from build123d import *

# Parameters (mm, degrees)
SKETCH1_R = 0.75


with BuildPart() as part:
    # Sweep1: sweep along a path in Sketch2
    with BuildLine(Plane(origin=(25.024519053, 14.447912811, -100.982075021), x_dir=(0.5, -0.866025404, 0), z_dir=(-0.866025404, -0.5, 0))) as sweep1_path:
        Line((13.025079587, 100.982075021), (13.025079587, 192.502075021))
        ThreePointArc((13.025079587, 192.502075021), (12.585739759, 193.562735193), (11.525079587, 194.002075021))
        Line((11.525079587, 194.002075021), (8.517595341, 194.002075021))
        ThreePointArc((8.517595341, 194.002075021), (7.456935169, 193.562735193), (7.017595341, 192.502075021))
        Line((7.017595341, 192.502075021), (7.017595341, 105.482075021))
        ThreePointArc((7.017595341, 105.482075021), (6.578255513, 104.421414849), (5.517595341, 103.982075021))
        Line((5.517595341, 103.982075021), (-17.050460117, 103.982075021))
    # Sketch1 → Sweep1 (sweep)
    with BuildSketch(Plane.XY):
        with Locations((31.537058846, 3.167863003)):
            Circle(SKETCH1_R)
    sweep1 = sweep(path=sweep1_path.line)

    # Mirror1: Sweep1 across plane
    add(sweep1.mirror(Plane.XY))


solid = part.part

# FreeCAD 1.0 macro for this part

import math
import FreeCAD as App
import Part
import Sketcher

V = App.Vector
Q = App.Units.Quantity

doc = App.newDocument("Part")
params = doc.addObject("Spreadsheet::Sheet", "Params")
for row, (alias, value) in enumerate([
    ("sketch1_diameter", "1.5 mm"),
    ("sketch2_radius", "1.5 mm"),
    ("sketch2_height", "91.52 mm"),
], start=1):
    params.set(f"A{row}", alias)
    params.set(f"B{row}", "=" + value)
    params.setAlias(f"B{row}", alias)

body = doc.addObject("PartDesign::Body", "Body")

# Sketch on XY plane
sketch1 = doc.addObject("Sketcher::SketchObject", "Sketch")
body.addObject(sketch1)
sketch1.AttachmentSupport = (doc.XY_Plane, [""])
sketch1.MapMode = "FlatFace"
sketch1.addGeometry(Part.Circle(V(31.537059, 3.167863, 0), V(0, 0, 1), 0.75), False)
sketch1.addConstraint([
    Sketcher.Constraint("Diameter", 0, Q("1.5 mm")),
    Sketcher.Constraint("DistanceX", -1, 1, 0, 3, Q("31.537059 mm")),
    Sketcher.Constraint("DistanceY", -1, 1, 0, 3, Q("3.167863 mm")),
])
sketch1.setExpression("Constraints[0]", "Params.sketch1_diameter")

# Sketch on an angled plane
sketch2 = doc.addObject("Sketcher::SketchObject", "Sketch001")
body.addObject(sketch2)
sketch2.Placement = App.Placement(V(25.024519, 14.447913, 0), App.Rotation(V(-0.5, 0.866025404, 0), V(0, 0, 1), V(0.866025404, 0.5, 0), "ZXY"))
sketch2.addGeometry([
    Part.LineSegment(V(-13.02508, 0, 0), V(-13.02508, 91.52, 0)),  # 0
    Part.ArcOfCircle(Part.Circle(V(-11.52508, 91.52, 0), V(0, 0, 1), 1.5), math.radians(90), math.radians(180)),  # 1
    Part.LineSegment(V(-11.52508, 93.02, 0), V(-8.517595, 93.02, 0)),  # 2
    Part.ArcOfCircle(Part.Circle(V(-8.517595, 91.52, 0), V(0, 0, 1), 1.5), math.radians(0), math.radians(90)),  # 3
    Part.LineSegment(V(-7.017595, 91.52, 0), V(-7.017595, 4.5, 0)),  # 4
    Part.ArcOfCircle(Part.Circle(V(-5.517595, 4.5, 0), V(0, 0, 1), 1.5), math.radians(180), math.radians(270)),  # 5
    Part.LineSegment(V(-5.517595, 3, 0), V(17.05046, 3, 0)),  # 6
], False)
sketch2.addConstraint([
    Sketcher.Constraint("Tangent", 0, 2, 1, 2),
    Sketcher.Constraint("Tangent", 1, 1, 2, 1),
    Sketcher.Constraint("Tangent", 2, 2, 3, 2),
    Sketcher.Constraint("Tangent", 3, 1, 4, 1),
    Sketcher.Constraint("Tangent", 4, 2, 5, 1),
    Sketcher.Constraint("Tangent", 5, 2, 6, 1),
    Sketcher.Constraint("Vertical", 0),
    Sketcher.Constraint("Horizontal", 2),
    Sketcher.Constraint("Vertical", 4),
    Sketcher.Constraint("Horizontal", 6),
    Sketcher.Constraint("Equal", 1, 3),
    Sketcher.Constraint("Equal", 3, 5),
    Sketcher.Constraint("PointOnObject", 0, 1, -1),
    Sketcher.Constraint("Radius", 1, Q("1.5 mm")),
    Sketcher.Constraint("DistanceY", -1, 1, 5, 2, Q("3 mm")),
    Sketcher.Constraint("DistanceY", 0, 1, 0, 2, Q("91.52 mm")),
    Sketcher.Constraint("DistanceX", 2, 1, 2, 2, Q("3.007484 mm")),
    Sketcher.Constraint("DistanceX", 6, 1, 6, 2, Q("22.568055 mm")),
    Sketcher.Constraint("DistanceX", 1, 3, -1, 1, Q("11.52508 mm")),
])
sketch2.setExpression("Constraints[13]", "Params.sketch2_radius")
sketch2.setExpression("Constraints[15]", "Params.sketch2_height")
doc.recompute()

additivepipe = doc.addObject("PartDesign::AdditivePipe", "AdditivePipe")
body.addObject(additivepipe)
additivepipe.Profile = sketch1
additivepipe.Spine = (sketch2, ["Edge1", "Edge2", "Edge3", "Edge4", "Edge5", "Edge6", "Edge7"])
doc.recompute()

mirrored = doc.addObject("PartDesign::Mirrored", "Mirrored")
body.addObject(mirrored)
mirrored.Originals = [additivepipe]
mirrored.MirrorPlane = (doc.XY_Plane, [""])
body.Tip = mirrored

doc.recompute()
